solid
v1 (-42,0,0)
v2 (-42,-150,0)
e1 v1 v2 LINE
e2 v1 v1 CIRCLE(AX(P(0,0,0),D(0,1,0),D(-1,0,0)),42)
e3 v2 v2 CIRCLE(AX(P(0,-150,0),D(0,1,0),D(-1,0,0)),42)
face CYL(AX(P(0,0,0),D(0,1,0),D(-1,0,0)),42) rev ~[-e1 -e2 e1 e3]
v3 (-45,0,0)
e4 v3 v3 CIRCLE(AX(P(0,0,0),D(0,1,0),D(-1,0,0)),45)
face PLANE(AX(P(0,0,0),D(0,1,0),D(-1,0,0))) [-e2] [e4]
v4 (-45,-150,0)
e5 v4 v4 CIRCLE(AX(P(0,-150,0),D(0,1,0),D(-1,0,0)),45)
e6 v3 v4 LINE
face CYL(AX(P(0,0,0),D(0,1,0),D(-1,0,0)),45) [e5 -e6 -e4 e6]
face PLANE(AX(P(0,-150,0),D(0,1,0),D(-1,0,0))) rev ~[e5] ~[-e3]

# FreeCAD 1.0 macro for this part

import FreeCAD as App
import Part
import Sketcher
from FreeCAD import Vector

doc = App.newDocument("Part")
params = doc.addObject("Spreadsheet::Sheet", "Params")
for row, (alias, value) in enumerate([
    ("sketch1_diameter", "90 mm"),
    ("sketch1_diameter2", "84 mm"),
    ("pad1_length", "150 mm"),
], start=1):
    params.set(f"A{row}", alias)
    params.set(f"B{row}", "=" + value)
    params.setAlias(f"B{row}", alias)

body = doc.addObject("PartDesign::Body", "Body")

sketch1 = body.newObject("Sketcher::SketchObject", "Sketch")
sketch1.AttachmentSupport = (doc.getObject("XZ_Plane"), [""])
sketch1.MapMode = "FlatFace"
sketch1.addGeometry([
    Part.Circle(Vector(0, 0, 0), Vector(0, 0, 1), 45),
    Part.Circle(Vector(0, 0, 0), Vector(0, 0, 1), 42),
], False)
sketch1.addConstraint([
    Sketcher.Constraint("Coincident", 0, 3, -1, 1),
    Sketcher.Constraint("Coincident", 1, 3, -1, 1),
    Sketcher.Constraint("Diameter", 0, 90.0),
    Sketcher.Constraint("Diameter", 1, 84.0),
])
sketch1.setExpression("Constraints[2]", "Params.sketch1_diameter")
sketch1.setExpression("Constraints[3]", "Params.sketch1_diameter2")
pad1 = body.newObject("PartDesign::Pad", "Pad")
pad1.Profile = sketch1
pad1.setExpression("Length", "Params.pad1_length")

doc.recompute()
